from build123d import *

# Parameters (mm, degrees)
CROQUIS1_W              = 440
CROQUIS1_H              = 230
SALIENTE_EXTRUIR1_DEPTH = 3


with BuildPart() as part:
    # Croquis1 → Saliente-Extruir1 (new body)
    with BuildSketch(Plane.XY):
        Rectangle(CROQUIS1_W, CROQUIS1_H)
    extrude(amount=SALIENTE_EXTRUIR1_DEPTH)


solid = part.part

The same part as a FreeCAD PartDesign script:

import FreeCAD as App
import Part
import Sketcher

V = App.Vector
Q = App.Units.Quantity


def add_polygon(sketch, points):
    """Adds a closed chain of lines whose ends are joined by coincident constraints."""
    first, n = sketch.GeometryCount, len(points)
    for a, b in zip(points, points[1:] + points[:1]):
        sketch.addGeometry(Part.LineSegment(App.Vector(*a, 0), App.Vector(*b, 0)), False)
    for i in range(n):
        sketch.addConstraint(Sketcher.Constraint("Coincident", first + i, 2, first + (i + 1) % n, 1))

doc = App.newDocument("Part")
body = doc.addObject("PartDesign::Body", "Body")

sketch1 = doc.addObject("Sketcher::SketchObject", "Sketch")
body.addObject(sketch1)
sketch1.AttachmentSupport = (doc.XY_Plane, [""])
sketch1.MapMode = "FlatFace"
add_polygon(sketch1, [(-220, 115), (-220, -115), (220, -115), (220, 115)])
sketch1.addConstraint([
    Sketcher.Constraint("Vertical", 0),
    Sketcher.Constraint("Horizontal", 1),
    Sketcher.Constraint("Vertical", 2),
    Sketcher.Constraint("Horizontal", 3),
    Sketcher.Constraint("Symmetric", 0, 2, 2, 2, -1, 1),
    Sketcher.Constraint("DistanceX", 1, 1, 1, 2, Q("440 mm")),
    Sketcher.Constraint("DistanceY", 0, 2, 0, 1, Q("230 mm")),
])
pad1 = doc.addObject("PartDesign::Pad", "Pad")
body.addObject(pad1)
pad1.Profile = sketch1
pad1.Length = 3

doc.recompute()
